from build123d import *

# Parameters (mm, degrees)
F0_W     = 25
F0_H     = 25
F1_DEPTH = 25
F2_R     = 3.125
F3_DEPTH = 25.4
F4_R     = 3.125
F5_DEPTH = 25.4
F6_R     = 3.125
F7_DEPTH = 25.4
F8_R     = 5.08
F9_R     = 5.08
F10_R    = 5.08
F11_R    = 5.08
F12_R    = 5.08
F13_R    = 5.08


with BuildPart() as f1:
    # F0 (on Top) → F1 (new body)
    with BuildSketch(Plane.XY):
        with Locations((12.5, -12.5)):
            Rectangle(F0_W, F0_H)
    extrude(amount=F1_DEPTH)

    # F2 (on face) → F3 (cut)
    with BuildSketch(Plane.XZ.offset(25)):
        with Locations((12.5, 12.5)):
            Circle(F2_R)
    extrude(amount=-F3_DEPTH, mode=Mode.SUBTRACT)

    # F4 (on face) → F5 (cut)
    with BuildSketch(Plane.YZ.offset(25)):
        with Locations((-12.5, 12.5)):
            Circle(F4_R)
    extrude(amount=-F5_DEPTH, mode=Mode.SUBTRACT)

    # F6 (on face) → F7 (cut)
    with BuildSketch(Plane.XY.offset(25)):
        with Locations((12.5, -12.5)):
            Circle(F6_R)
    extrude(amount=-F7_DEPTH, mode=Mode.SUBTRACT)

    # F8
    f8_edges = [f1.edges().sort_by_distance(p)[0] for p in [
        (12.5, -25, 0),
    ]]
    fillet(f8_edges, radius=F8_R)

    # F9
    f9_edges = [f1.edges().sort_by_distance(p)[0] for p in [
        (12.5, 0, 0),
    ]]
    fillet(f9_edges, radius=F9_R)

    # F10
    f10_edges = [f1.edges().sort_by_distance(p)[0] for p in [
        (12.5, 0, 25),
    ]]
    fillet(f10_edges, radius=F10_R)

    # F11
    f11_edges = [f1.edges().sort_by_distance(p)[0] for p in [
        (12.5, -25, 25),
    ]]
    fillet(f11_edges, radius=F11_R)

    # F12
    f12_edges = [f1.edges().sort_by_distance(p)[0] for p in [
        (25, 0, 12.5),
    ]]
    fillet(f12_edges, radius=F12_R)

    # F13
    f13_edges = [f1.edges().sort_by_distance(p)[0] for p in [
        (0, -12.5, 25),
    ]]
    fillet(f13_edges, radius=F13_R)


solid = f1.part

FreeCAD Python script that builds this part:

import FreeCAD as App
import Part
import Sketcher
from FreeCAD import Vector
Q = App.Units.Quantity


def edges_at(feature, points):
    """Names of the edges that pass closest to the given points."""
    edges = feature.Shape.Edges
    near = lambda p: min(range(len(edges)), key=lambda i: edges[i].distToShape(Part.Vertex(*p))[0])
    return sorted({f"Edge{near(p) + 1}" for p in points})

doc = App.newDocument("Part")
body = doc.addObject("PartDesign::Body", "Body")

sketch1 = doc.addObject("Sketcher::SketchObject", "Sketch")
body.addObject(sketch1)
sketch1.AttachmentSupport = (doc.XY_Plane, [""])
sketch1.MapMode = "FlatFace"
sketch1.addGeometry([
    Part.LineSegment(Vector(0, 0, 0), Vector(0, -25, 0)),
    Part.LineSegment(Vector(0, -25, 0), Vector(25, -25, 0)),
    Part.LineSegment(Vector(25, -25, 0), Vector(25, 0, 0)),
    Part.LineSegment(Vector(25, 0, 0), Vector(0, 0, 0)),
], False)
sketch1.addConstraint([
    Sketcher.Constraint("Coincident", 0, 2, 1, 1),
    Sketcher.Constraint("Coincident", 1, 2, 2, 1),
    Sketcher.Constraint("Coincident", 2, 2, 3, 1),
    Sketcher.Constraint("Coincident", 3, 2, 0, 1),
    Sketcher.Constraint("Vertical", 0),
    Sketcher.Constraint("Horizontal", 1),
    Sketcher.Constraint("Vertical", 2),
    Sketcher.Constraint("Horizontal", 3),
    Sketcher.Constraint("Coincident", 3, 2, -1, 1),
    Sketcher.Constraint("Equal", 3, 0),
    Sketcher.Constraint("DistanceX", 1, 1, 1, 2, Q("25 mm")),
])
pad1 = doc.addObject("PartDesign::Pad", "Pad")
body.addObject(pad1)
pad1.Profile = sketch1
pad1.Length = 25

sketch2 = doc.addObject("Sketcher::SketchObject", "Sketch001")
body.addObject(sketch2)
sketch2.AttachmentSupport = (doc.XZ_Plane, [""])
sketch2.MapMode = "FlatFace"
sketch2.AttachmentOffset = App.Placement(Vector(0, 0, 25), App.Rotation())
sketch2.addGeometry(Part.Circle(Vector(12.5, 12.5, 0), Vector(0, 0, 1), 3.1), False)
sketch2.addConstraint([
    Sketcher.Constraint("Diameter", 0, Q("6.25 mm")),
    Sketcher.Constraint("DistanceX", -1, 1, 0, 3, Q("12.5 mm")),
    Sketcher.Constraint("DistanceY", -1, 1, 0, 3, Q("12.5 mm")),
])
pocket1 = doc.addObject("PartDesign::Pocket", "Pocket")
body.addObject(pocket1)
pocket1.Profile = sketch2
pocket1.Length = Q("1 in")

sketch3 = doc.addObject("Sketcher::SketchObject", "Sketch002")
body.addObject(sketch3)
sketch3.AttachmentSupport = (doc.YZ_Plane, [""])
sketch3.MapMode = "FlatFace"
sketch3.AttachmentOffset = App.Placement(Vector(0, 0, 25), App.Rotation())
sketch3.addGeometry(Part.Circle(Vector(-12.5, 12.5, 0), Vector(0, 0, 1), 3.1), False)
sketch3.addConstraint([
    Sketcher.Constraint("Diameter", 0, Q("6.25 mm")),
    Sketcher.Constraint("DistanceX", 0, 3, -1, 1, Q("12.5 mm")),
    Sketcher.Constraint("DistanceY", -1, 1, 0, 3, Q("12.5 mm")),
])
pocket2 = doc.addObject("PartDesign::Pocket", "Pocket001")
body.addObject(pocket2)
pocket2.Profile = sketch3
pocket2.Length = Q("1 in")

sketch4 = doc.addObject("Sketcher::SketchObject", "Sketch003")
body.addObject(sketch4)
sketch4.AttachmentSupport = (doc.XY_Plane, [""])
sketch4.MapMode = "FlatFace"
sketch4.AttachmentOffset = App.Placement(Vector(0, 0, 25), App.Rotation())
sketch4.addGeometry(Part.Circle(Vector(12.5, -12.5, 0), Vector(0, 0, 1), 3.1), False)
sketch4.addConstraint([
    Sketcher.Constraint("Diameter", 0, Q("6.25 mm")),
    Sketcher.Constraint("DistanceX", -1, 1, 0, 3, Q("12.5 mm")),
    Sketcher.Constraint("DistanceY", 0, 3, -1, 1, Q("12.5 mm")),
])
pocket3 = doc.addObject("PartDesign::Pocket", "Pocket002")
body.addObject(pocket3)
pocket3.Profile = sketch4
pocket3.Length = Q("1 in")
doc.recompute()

fillet = doc.addObject("PartDesign::Fillet", "Fillet")
body.addObject(fillet)
fillet.Base = (pocket3, edges_at(pocket3, [(12.5, -25, 0)]))
fillet.Radius = Q("0.2 in")
doc.recompute()

fillet2 = doc.addObject("PartDesign::Fillet", "Fillet001")
body.addObject(fillet2)
fillet2.Base = (fillet, edges_at(fillet, [(12.5, 0, 0)]))
fillet2.Radius = Q("0.2 in")
doc.recompute()

fillet3 = doc.addObject("PartDesign::Fillet", "Fillet002")
body.addObject(fillet3)
fillet3.Base = (fillet2, edges_at(fillet2, [(12.5, 0, 25)]))
fillet3.Radius = Q("0.2 in")
doc.recompute()

fillet4 = doc.addObject("PartDesign::Fillet", "Fillet003")
body.addObject(fillet4)
fillet4.Base = (fillet3, edges_at(fillet3, [(12.5, -25, 25)]))
fillet4.Radius = Q("0.2 in")
doc.recompute()

fillet5 = doc.addObject("PartDesign::Fillet", "Fillet004")
body.addObject(fillet5)
fillet5.Base = (fillet4, edges_at(fillet4, [(25, 0, 12.5)]))
fillet5.Radius = Q("0.2 in")
doc.recompute()

fillet6 = doc.addObject("PartDesign::Fillet", "Fillet005")
body.addObject(fillet6)
fillet6.Base = (fillet5, edges_at(fillet5, [(0, -12.5, 25)]))
fillet6.Radius = Q("0.2 in")

doc.recompute()
